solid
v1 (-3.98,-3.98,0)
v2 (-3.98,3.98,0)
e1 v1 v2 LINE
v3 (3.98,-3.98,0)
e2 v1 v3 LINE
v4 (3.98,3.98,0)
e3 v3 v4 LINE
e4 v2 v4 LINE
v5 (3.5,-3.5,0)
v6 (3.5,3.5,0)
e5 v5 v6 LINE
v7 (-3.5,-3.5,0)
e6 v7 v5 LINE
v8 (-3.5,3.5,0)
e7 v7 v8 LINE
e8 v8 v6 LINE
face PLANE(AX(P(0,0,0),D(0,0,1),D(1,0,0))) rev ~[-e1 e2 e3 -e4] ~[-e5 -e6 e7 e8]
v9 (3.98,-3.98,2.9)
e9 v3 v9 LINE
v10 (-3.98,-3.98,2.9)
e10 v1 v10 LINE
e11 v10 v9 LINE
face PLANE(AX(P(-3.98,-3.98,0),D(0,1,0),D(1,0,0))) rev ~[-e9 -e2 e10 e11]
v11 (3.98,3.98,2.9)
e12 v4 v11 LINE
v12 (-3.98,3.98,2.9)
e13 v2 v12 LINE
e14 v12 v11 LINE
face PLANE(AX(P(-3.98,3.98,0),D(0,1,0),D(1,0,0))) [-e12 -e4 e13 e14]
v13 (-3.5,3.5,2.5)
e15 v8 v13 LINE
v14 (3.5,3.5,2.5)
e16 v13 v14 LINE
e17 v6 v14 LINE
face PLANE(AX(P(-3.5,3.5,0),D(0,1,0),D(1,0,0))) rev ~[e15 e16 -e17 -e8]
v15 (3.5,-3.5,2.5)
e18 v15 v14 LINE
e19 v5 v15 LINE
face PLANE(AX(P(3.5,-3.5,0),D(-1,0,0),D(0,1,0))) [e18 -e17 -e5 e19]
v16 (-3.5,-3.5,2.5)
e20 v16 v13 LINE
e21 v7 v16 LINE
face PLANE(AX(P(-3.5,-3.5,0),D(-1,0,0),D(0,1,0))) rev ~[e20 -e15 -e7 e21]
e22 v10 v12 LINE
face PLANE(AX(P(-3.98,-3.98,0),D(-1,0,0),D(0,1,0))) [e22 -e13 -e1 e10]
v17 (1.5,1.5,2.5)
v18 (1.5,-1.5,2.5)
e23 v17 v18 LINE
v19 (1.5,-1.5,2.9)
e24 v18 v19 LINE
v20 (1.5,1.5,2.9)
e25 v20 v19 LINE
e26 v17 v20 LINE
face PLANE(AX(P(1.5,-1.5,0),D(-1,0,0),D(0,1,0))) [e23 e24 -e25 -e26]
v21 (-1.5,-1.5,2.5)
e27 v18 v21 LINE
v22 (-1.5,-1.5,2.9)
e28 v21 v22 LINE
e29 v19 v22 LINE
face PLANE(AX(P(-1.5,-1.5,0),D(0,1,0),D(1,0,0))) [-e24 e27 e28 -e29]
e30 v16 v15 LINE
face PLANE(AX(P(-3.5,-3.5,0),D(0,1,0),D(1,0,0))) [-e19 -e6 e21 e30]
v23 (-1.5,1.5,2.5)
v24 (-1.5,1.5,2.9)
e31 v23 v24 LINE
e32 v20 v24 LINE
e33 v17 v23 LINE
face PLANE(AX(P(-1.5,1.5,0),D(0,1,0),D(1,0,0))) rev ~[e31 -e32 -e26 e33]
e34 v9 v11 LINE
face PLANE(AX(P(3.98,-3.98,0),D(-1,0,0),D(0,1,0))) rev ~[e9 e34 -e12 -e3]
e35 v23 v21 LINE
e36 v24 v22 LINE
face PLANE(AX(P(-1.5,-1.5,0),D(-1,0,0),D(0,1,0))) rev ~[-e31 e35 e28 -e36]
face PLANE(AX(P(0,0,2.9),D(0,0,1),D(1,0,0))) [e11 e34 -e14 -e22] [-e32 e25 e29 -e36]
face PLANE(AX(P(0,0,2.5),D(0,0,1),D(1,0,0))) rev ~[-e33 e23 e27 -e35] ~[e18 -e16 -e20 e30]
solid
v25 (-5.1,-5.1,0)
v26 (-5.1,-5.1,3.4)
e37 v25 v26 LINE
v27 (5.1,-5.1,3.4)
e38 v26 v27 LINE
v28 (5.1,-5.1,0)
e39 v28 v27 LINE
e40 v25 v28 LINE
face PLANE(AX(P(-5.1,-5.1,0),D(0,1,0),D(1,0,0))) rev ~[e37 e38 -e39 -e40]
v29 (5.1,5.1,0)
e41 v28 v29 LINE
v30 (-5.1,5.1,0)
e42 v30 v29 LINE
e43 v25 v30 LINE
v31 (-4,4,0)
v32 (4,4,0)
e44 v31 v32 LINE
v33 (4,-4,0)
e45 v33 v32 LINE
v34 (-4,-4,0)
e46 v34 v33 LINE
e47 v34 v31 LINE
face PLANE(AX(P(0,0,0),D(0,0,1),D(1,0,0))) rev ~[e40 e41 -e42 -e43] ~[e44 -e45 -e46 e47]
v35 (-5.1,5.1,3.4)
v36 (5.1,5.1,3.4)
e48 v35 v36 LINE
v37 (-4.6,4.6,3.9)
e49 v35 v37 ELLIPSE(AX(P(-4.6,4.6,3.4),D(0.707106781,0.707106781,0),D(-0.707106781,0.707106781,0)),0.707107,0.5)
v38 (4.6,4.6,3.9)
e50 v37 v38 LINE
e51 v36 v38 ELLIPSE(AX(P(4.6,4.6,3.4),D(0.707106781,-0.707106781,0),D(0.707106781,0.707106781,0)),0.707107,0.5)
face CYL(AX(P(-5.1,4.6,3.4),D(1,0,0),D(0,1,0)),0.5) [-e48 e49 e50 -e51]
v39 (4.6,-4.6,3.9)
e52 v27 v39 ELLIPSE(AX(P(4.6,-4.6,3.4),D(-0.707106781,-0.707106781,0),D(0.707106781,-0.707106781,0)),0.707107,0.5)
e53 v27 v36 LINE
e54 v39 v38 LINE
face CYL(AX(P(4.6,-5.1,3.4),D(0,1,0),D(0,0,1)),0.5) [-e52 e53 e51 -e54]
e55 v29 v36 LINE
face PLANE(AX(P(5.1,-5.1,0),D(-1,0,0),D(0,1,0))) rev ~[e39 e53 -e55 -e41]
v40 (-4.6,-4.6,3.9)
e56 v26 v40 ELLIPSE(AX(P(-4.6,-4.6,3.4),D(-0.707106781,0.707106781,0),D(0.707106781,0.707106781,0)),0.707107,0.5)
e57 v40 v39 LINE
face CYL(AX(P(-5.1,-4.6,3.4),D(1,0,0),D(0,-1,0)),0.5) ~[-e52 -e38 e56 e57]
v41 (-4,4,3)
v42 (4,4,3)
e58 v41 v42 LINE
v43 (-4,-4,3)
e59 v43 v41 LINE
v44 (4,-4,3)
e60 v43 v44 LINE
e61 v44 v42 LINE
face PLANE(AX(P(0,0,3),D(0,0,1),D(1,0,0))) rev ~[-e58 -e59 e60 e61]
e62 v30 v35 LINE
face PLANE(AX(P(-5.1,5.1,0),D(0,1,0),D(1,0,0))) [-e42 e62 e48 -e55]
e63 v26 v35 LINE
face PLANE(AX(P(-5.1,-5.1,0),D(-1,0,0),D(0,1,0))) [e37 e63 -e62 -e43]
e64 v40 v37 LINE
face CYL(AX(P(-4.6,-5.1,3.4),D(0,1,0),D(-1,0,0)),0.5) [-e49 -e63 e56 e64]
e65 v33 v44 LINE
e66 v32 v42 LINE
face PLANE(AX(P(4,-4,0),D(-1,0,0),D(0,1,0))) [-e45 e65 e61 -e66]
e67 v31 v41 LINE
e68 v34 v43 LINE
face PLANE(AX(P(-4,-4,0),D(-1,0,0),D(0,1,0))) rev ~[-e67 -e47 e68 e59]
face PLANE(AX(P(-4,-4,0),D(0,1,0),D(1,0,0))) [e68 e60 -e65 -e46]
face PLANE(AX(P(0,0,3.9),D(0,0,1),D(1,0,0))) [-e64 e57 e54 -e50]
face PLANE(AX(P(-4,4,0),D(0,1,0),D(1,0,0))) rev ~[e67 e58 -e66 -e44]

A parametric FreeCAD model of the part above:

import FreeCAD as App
import Part
import Sketcher
Q = App.Units.Quantity


def edges_at(feature, points):
    """Names of the edges that pass closest to the given points."""
    edges = feature.Shape.Edges
    near = lambda p: min(range(len(edges)), key=lambda i: edges[i].distToShape(Part.Vertex(*p))[0])
    return sorted({f"Edge{near(p) + 1}" for p in points})

doc = App.newDocument("Part")
body = doc.addObject("PartDesign::Body", "Body")

# Sketch on XY plane
sketch1 = body.newObject("Sketcher::SketchObject", "Sketch")
sketch1.AttachmentSupport = (doc.getObject("XY_Plane"), [""])
sketch1.MapMode = "FlatFace"
sketch1.addGeometry(Part.LineSegment(App.Vector(-4, 4, 0), App.Vector(-4, -4, 0)), False)
sketch1.addGeometry(Part.LineSegment(App.Vector(-4, -4, 0), App.Vector(4, -4, 0)), False)
sketch1.addGeometry(Part.LineSegment(App.Vector(4, -4, 0), App.Vector(4, 4, 0)), False)
sketch1.addGeometry(Part.LineSegment(App.Vector(4, 4, 0), App.Vector(-4, 4, 0)), False)
sketch1.addConstraint(Sketcher.Constraint("Coincident", 0, 2, 1, 1))
sketch1.addConstraint(Sketcher.Constraint("Coincident", 1, 2, 2, 1))
sketch1.addConstraint(Sketcher.Constraint("Coincident", 2, 2, 3, 1))
sketch1.addConstraint(Sketcher.Constraint("Coincident", 3, 2, 0, 1))
sketch1.addConstraint(Sketcher.Constraint("Vertical", 0))
sketch1.addConstraint(Sketcher.Constraint("Horizontal", 1))
sketch1.addConstraint(Sketcher.Constraint("Vertical", 2))
sketch1.addConstraint(Sketcher.Constraint("Horizontal", 3))
sketch1.addConstraint(Sketcher.Constraint("Symmetric", 0, 2, 2, 2, -1, 1))
sketch1.addConstraint(Sketcher.Constraint("Equal", 3, 0))
sketch1.addConstraint(Sketcher.Constraint("DistanceX", 1, 1, 1, 2, Q("8 mm")))
pad1 = body.newObject("PartDesign::Pad", "Pad")
pad1.Profile = sketch1
pad1.Length = 3
body2 = doc.addObject("PartDesign::Body", "Body001")

# Sketch on XY plane
sketch2 = body2.newObject("Sketcher::SketchObject", "Sketch001")
sketch2.AttachmentSupport = (doc.getObject("XY_Plane001"), [""])
sketch2.MapMode = "FlatFace"
sketch2.addGeometry(Part.LineSegment(App.Vector(-5, 5, 0), App.Vector(-5, -5, 0)), False)
sketch2.addGeometry(Part.LineSegment(App.Vector(-5, -5, 0), App.Vector(5, -5, 0)), False)
sketch2.addGeometry(Part.LineSegment(App.Vector(5, -5, 0), App.Vector(5, 5, 0)), False)
sketch2.addGeometry(Part.LineSegment(App.Vector(5, 5, 0), App.Vector(-5, 5, 0)), False)
sketch2.addConstraint(Sketcher.Constraint("Coincident", 0, 2, 1, 1))
sketch2.addConstraint(Sketcher.Constraint("Coincident", 1, 2, 2, 1))
sketch2.addConstraint(Sketcher.Constraint("Coincident", 2, 2, 3, 1))
sketch2.addConstraint(Sketcher.Constraint("Coincident", 3, 2, 0, 1))
sketch2.addConstraint(Sketcher.Constraint("Vertical", 0))
sketch2.addConstraint(Sketcher.Constraint("Horizontal", 1))
sketch2.addConstraint(Sketcher.Constraint("Vertical", 2))
sketch2.addConstraint(Sketcher.Constraint("Horizontal", 3))
sketch2.addConstraint(Sketcher.Constraint("Symmetric", 0, 2, 2, 2, -1, 1))
sketch2.addConstraint(Sketcher.Constraint("Equal", 3, 0))
sketch2.addConstraint(Sketcher.Constraint("DistanceX", 1, 1, 1, 2, Q("10.2 mm")))
pad2 = body2.newObject("PartDesign::Pad", "Pad001")
pad2.Profile = sketch2
pad2.Length = 3.9
doc.recompute()

boolean = body2.newObject("PartDesign::Boolean", "Boolean")
boolean.Type = "Cut"
boolean.addObjects([body])
doc.recompute()

fillet = body2.newObject("PartDesign::Fillet", "Fillet")
fillet.Base = (boolean, edges_at(boolean, [
    (-5.1, 0, 3.9),
    (0, -5.1, 3.9),
    (0, 5.1, 3.9),
    (5.1, 0, 3.9),
]))
fillet.Radius = 0.5
body3 = doc.addObject("PartDesign::Body", "Body002")

# Sketch on XY plane
sketch3 = body3.newObject("Sketcher::SketchObject", "Sketch002")
sketch3.AttachmentSupport = (doc.getObject("XY_Plane002"), [""])
sketch3.MapMode = "FlatFace"
sketch3.addGeometry(Part.LineSegment(App.Vector(-1.5, 1.5, 0), App.Vector(-1.5, -1.5, 0)), False)
sketch3.addGeometry(Part.LineSegment(App.Vector(-1.5, -1.5, 0), App.Vector(1.5, -1.5, 0)), False)
sketch3.addGeometry(Part.LineSegment(App.Vector(1.5, -1.5, 0), App.Vector(1.5, 1.5, 0)), False)
sketch3.addGeometry(Part.LineSegment(App.Vector(1.5, 1.5, 0), App.Vector(-1.5, 1.5, 0)), False)
sketch3.addConstraint(Sketcher.Constraint("Coincident", 0, 2, 1, 1))
sketch3.addConstraint(Sketcher.Constraint("Coincident", 1, 2, 2, 1))
sketch3.addConstraint(Sketcher.Constraint("Coincident", 2, 2, 3, 1))
sketch3.addConstraint(Sketcher.Constraint("Coincident", 3, 2, 0, 1))
sketch3.addConstraint(Sketcher.Constraint("Vertical", 0))
sketch3.addConstraint(Sketcher.Constraint("Horizontal", 1))
sketch3.addConstraint(Sketcher.Constraint("Vertical", 2))
sketch3.addConstraint(Sketcher.Constraint("Horizontal", 3))
sketch3.addConstraint(Sketcher.Constraint("Symmetric", 0, 2, 2, 2, -1, 1))
sketch3.addConstraint(Sketcher.Constraint("Equal", 3, 0))
sketch3.addConstraint(Sketcher.Constraint("DistanceX", 1, 1, 1, 2, Q("3 mm")))
pad3 = body3.newObject("PartDesign::Pad", "Pad002")
pad3.Profile = sketch3
pad3.Length = 4
body4 = doc.addObject("PartDesign::Body", "Body003")

# Sketch on XY plane
sketch4 = body4.newObject("Sketcher::SketchObject", "Sketch003")
sketch4.AttachmentSupport = (doc.getObject("XY_Plane003"), [""])
sketch4.MapMode = "FlatFace"
sketch4.addGeometry(Part.LineSegment(App.Vector(-4, 4, 0), App.Vector(-4, -4, 0)), False)
sketch4.addGeometry(Part.LineSegment(App.Vector(-4, -4, 0), App.Vector(4, -4, 0)), False)
sketch4.addGeometry(Part.LineSegment(App.Vector(4, -4, 0), App.Vector(4, 4, 0)), False)
sketch4.addGeometry(Part.LineSegment(App.Vector(4, 4, 0), App.Vector(-4, 4, 0)), False)
sketch4.addConstraint(Sketcher.Constraint("Coincident", 0, 2, 1, 1))
sketch4.addConstraint(Sketcher.Constraint("Coincident", 1, 2, 2, 1))
sketch4.addConstraint(Sketcher.Constraint("Coincident", 2, 2, 3, 1))
sketch4.addConstraint(Sketcher.Constraint("Coincident", 3, 2, 0, 1))
sketch4.addConstraint(Sketcher.Constraint("Vertical", 0))
sketch4.addConstraint(Sketcher.Constraint("Horizontal", 1))
sketch4.addConstraint(Sketcher.Constraint("Vertical", 2))
sketch4.addConstraint(Sketcher.Constraint("Horizontal", 3))
sketch4.addConstraint(Sketcher.Constraint("Symmetric", 0, 2, 2, 2, -1, 1))
sketch4.addConstraint(Sketcher.Constraint("Equal", 3, 0))
sketch4.addConstraint(Sketcher.Constraint("DistanceX", 1, 1, 1, 2, Q("7 mm")))
pad4 = body4.newObject("PartDesign::Pad", "Pad003")
pad4.Profile = sketch4
pad4.Length = 2.5
doc.recompute()

boolean2 = body4.newObject("PartDesign::Boolean", "Boolean001")
boolean2.Type = "Fuse"
boolean2.addObjects([body3])
body5 = doc.addObject("PartDesign::Body", "Body004")

# Sketch on XY plane
sketch5 = body5.newObject("Sketcher::SketchObject", "Sketch004")
sketch5.AttachmentSupport = (doc.getObject("XY_Plane004"), [""])
sketch5.MapMode = "FlatFace"
sketch5.addGeometry(Part.LineSegment(App.Vector(-4, 4, 0), App.Vector(-4, -4, 0)), False)
sketch5.addGeometry(Part.LineSegment(App.Vector(-4, -4, 0), App.Vector(4, -4, 0)), False)
sketch5.addGeometry(Part.LineSegment(App.Vector(4, -4, 0), App.Vector(4, 4, 0)), False)
sketch5.addGeometry(Part.LineSegment(App.Vector(4, 4, 0), App.Vector(-4, 4, 0)), False)
sketch5.addConstraint(Sketcher.Constraint("Coincident", 0, 2, 1, 1))
sketch5.addConstraint(Sketcher.Constraint("Coincident", 1, 2, 2, 1))
sketch5.addConstraint(Sketcher.Constraint("Coincident", 2, 2, 3, 1))
sketch5.addConstraint(Sketcher.Constraint("Coincident", 3, 2, 0, 1))
sketch5.addConstraint(Sketcher.Constraint("Vertical", 0))
sketch5.addConstraint(Sketcher.Constraint("Horizontal", 1))
sketch5.addConstraint(Sketcher.Constraint("Vertical", 2))
sketch5.addConstraint(Sketcher.Constraint("Horizontal", 3))
sketch5.addConstraint(Sketcher.Constraint("Symmetric", 0, 2, 2, 2, -1, 1))
sketch5.addConstraint(Sketcher.Constraint("Equal", 3, 0))
sketch5.addConstraint(Sketcher.Constraint("DistanceX", 1, 1, 1, 2, Q("7.96 mm")))
pad5 = body5.newObject("PartDesign::Pad", "Pad004")
pad5.Profile = sketch5
pad5.Length = 2.9
doc.recompute()

boolean3 = body5.newObject("PartDesign::Boolean", "Boolean002")
boolean3.Type = "Cut"
boolean3.addObjects([body4])

doc.recompute()
